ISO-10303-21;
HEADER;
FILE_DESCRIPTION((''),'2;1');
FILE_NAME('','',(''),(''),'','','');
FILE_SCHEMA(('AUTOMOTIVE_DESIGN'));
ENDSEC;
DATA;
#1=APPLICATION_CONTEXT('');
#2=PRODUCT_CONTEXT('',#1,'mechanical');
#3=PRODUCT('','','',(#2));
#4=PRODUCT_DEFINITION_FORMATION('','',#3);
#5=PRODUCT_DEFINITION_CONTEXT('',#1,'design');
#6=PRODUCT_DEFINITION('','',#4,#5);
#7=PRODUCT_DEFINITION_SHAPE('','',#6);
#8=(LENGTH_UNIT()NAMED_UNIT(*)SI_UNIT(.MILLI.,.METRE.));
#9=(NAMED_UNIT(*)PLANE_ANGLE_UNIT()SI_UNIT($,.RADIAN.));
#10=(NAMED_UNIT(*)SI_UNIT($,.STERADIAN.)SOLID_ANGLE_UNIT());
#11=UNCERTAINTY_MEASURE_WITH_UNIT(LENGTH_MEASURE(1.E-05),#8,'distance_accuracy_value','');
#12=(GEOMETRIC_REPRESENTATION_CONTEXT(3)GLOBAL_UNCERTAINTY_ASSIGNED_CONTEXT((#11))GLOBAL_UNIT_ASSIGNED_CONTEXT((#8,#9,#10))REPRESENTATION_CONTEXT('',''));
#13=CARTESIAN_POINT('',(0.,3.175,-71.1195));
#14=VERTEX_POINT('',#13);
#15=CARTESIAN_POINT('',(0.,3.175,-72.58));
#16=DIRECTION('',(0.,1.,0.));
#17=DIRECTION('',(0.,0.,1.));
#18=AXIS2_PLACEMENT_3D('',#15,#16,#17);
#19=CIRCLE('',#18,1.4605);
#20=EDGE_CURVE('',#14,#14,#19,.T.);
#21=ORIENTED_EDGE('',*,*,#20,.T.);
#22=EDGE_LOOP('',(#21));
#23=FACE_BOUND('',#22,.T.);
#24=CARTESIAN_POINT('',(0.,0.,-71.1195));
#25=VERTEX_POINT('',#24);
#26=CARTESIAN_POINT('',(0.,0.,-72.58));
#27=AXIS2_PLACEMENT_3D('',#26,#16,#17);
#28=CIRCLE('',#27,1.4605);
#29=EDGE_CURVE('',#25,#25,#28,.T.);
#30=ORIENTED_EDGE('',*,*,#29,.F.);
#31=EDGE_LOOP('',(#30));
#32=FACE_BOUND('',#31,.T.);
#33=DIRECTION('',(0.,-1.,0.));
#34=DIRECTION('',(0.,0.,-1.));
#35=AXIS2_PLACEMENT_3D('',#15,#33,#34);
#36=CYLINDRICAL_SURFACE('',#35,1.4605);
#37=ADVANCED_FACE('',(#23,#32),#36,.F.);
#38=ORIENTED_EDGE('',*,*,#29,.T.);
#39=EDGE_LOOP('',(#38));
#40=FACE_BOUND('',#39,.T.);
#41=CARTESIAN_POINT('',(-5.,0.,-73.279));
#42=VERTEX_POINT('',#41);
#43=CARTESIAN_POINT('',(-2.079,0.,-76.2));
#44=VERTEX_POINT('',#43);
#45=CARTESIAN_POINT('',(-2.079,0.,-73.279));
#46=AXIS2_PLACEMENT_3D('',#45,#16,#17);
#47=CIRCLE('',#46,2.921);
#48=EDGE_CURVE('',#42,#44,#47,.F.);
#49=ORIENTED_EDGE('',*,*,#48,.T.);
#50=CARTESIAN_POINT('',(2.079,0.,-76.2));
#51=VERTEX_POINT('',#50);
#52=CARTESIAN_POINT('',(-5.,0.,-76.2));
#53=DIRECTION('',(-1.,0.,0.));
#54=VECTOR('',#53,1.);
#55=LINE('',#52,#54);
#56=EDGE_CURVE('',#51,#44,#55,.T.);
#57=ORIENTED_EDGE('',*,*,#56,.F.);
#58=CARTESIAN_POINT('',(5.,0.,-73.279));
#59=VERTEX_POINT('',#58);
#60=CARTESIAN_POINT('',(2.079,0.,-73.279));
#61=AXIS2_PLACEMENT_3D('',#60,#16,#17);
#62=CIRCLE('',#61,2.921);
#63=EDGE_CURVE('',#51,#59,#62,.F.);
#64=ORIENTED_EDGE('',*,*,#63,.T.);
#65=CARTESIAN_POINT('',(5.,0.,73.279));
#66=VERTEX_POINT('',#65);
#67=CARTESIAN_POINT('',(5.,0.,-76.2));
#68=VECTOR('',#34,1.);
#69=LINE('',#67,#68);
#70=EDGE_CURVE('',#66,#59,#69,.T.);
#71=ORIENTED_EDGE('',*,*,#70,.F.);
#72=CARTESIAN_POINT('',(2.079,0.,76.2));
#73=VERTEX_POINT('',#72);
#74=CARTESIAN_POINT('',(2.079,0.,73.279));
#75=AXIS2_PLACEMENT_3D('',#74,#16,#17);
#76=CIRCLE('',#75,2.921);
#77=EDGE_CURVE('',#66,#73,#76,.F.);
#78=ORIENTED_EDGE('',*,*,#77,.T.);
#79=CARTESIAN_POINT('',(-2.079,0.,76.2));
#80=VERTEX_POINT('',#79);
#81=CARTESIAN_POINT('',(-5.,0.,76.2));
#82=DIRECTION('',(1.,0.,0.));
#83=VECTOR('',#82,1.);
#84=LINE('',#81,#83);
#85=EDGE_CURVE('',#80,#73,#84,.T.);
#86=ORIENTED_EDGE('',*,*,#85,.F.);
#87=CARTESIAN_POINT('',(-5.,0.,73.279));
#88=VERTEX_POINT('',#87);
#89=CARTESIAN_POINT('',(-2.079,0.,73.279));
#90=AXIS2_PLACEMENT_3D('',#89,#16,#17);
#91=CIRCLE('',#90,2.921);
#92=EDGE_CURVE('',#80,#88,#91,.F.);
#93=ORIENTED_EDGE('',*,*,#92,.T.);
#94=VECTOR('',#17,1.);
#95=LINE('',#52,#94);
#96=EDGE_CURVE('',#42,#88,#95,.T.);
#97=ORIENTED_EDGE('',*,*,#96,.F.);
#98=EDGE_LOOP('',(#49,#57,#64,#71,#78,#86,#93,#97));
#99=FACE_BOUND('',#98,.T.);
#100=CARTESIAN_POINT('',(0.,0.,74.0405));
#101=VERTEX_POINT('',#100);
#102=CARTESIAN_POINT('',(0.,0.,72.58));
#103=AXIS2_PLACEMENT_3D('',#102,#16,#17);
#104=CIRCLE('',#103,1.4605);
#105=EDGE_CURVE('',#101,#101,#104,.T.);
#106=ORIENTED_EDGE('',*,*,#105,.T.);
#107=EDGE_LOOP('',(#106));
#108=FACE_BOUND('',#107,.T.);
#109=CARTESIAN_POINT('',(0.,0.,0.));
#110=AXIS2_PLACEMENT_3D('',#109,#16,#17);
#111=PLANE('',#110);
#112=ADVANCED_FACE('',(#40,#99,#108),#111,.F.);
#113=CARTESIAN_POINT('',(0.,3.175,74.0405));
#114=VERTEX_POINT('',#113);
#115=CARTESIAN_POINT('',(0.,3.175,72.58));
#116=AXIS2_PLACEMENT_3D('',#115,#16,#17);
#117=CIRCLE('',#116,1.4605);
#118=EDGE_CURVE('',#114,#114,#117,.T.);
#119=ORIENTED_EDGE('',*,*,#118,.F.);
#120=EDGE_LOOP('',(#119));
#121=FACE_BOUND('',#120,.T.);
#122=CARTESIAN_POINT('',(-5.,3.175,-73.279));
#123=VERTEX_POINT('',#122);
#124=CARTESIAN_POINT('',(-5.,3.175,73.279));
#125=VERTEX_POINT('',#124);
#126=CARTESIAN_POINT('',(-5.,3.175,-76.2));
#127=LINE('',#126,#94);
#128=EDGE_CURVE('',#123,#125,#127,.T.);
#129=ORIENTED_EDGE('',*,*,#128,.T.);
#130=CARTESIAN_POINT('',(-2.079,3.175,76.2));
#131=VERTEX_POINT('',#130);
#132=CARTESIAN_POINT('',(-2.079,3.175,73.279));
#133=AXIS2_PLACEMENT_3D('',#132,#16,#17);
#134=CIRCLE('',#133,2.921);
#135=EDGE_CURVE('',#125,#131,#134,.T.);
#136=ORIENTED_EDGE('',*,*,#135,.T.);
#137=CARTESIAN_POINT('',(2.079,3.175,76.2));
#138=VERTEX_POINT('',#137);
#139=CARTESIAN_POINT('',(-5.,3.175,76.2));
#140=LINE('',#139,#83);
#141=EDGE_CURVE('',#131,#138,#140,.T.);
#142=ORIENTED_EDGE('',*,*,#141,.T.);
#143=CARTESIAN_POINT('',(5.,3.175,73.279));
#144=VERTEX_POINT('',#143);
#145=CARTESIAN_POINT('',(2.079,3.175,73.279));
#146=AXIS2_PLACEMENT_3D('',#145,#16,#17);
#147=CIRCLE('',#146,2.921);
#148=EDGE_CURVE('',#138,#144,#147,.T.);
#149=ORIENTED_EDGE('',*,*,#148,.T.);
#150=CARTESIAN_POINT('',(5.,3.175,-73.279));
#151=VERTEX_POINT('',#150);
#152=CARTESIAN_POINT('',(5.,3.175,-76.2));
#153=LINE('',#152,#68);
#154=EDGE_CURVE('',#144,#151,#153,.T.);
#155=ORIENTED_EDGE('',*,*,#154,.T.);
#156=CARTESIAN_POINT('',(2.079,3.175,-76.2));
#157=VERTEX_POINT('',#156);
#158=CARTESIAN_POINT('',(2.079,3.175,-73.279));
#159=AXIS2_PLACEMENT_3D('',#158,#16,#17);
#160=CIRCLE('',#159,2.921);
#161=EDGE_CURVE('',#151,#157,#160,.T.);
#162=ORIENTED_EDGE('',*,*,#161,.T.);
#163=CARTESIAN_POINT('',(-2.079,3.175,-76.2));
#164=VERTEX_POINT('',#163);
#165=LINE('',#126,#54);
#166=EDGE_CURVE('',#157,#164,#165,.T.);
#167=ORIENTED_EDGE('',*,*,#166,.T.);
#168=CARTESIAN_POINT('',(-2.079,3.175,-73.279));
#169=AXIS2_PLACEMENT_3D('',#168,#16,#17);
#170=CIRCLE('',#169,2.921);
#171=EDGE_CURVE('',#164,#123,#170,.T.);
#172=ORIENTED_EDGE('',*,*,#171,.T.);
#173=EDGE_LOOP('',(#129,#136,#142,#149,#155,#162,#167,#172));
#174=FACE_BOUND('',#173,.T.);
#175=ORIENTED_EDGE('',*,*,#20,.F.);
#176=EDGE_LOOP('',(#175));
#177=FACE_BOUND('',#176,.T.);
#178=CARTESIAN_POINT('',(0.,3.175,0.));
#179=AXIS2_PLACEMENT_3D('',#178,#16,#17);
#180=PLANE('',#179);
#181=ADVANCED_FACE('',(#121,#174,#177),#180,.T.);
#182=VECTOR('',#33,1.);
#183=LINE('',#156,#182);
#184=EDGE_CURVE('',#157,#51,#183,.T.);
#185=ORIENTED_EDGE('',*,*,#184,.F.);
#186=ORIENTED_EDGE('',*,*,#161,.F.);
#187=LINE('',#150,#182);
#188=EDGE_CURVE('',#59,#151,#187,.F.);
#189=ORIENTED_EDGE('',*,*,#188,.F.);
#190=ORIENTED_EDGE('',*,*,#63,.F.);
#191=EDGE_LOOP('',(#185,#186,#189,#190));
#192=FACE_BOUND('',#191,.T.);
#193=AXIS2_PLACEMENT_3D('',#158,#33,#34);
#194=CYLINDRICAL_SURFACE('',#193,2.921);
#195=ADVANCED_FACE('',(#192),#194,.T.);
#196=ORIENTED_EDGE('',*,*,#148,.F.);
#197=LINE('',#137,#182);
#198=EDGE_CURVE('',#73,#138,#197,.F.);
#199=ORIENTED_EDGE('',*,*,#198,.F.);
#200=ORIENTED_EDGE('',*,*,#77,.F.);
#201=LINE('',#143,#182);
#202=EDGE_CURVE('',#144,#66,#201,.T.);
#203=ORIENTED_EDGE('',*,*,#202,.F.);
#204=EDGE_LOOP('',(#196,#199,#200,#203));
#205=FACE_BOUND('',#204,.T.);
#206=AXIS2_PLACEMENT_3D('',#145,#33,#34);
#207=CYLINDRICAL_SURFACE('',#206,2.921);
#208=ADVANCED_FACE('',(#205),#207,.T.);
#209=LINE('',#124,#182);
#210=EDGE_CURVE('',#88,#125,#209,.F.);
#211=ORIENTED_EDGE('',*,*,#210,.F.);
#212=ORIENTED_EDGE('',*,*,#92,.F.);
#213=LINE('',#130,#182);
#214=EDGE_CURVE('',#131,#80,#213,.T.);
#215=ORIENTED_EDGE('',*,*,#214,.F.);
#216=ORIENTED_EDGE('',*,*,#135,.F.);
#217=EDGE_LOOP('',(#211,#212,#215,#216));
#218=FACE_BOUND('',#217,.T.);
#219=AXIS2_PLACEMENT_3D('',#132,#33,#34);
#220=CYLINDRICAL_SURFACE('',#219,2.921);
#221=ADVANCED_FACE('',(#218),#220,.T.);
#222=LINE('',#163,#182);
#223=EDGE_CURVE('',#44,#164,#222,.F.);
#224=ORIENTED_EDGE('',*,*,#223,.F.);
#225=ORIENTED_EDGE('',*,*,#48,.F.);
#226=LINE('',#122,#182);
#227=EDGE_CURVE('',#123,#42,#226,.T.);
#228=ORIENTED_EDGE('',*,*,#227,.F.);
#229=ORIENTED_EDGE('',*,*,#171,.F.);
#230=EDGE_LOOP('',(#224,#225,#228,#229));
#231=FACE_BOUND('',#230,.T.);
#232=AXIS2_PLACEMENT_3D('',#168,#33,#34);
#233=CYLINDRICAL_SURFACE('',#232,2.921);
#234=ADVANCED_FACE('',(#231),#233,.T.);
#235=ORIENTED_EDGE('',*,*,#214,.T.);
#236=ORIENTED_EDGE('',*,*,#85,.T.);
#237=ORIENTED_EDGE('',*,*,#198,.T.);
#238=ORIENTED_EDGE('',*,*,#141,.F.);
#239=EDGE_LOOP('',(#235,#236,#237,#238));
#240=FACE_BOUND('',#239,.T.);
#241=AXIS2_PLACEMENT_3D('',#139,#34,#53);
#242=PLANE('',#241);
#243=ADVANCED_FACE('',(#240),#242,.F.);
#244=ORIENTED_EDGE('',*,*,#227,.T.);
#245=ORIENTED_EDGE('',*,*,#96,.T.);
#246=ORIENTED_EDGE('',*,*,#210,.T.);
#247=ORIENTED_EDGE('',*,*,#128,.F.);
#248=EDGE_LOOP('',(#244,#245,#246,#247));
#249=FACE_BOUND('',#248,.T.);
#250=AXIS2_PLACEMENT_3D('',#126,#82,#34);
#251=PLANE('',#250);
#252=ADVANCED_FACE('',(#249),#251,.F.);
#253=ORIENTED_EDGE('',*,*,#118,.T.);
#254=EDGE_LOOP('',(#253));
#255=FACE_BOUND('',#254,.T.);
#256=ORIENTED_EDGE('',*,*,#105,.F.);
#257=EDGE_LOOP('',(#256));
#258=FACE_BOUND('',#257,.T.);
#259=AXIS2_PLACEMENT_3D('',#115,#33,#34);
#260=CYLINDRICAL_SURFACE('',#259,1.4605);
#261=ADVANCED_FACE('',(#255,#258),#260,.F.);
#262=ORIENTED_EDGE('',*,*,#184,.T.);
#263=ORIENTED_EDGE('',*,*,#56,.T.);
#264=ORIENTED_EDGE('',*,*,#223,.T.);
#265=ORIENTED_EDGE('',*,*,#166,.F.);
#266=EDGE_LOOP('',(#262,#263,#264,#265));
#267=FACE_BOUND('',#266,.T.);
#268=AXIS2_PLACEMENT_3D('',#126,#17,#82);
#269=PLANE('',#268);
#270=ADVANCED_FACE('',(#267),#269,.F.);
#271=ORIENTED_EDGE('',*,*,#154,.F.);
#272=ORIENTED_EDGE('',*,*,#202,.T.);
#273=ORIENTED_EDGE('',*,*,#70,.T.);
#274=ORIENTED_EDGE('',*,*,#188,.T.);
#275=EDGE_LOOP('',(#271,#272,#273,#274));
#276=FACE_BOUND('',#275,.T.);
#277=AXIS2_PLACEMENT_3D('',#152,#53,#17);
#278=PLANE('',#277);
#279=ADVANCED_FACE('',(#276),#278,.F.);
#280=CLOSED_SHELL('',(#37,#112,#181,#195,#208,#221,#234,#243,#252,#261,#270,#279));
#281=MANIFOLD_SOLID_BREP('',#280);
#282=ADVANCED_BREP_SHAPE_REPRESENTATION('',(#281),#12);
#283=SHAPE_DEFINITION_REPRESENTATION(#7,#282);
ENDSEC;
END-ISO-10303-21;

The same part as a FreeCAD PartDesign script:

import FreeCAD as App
import Part
import Sketcher

V = App.Vector
Q = App.Units.Quantity


def edges_at(feature, points):
    """Names of the edges that pass closest to the given points."""
    edges = feature.Shape.Edges
    near = lambda p: min(range(len(edges)), key=lambda i: edges[i].distToShape(Part.Vertex(*p))[0])
    return sorted({f"Edge{near(p) + 1}" for p in points})

doc = App.newDocument("Part")
params = doc.addObject("Spreadsheet::Sheet", "Params")
for row, (alias, value) in enumerate([
    ("sketch1_height", "6 in"),
    ("sketch1_diameter", "0.115 in"),
    ("pad1_length", "0.125 in"),
    ("fillet_radius", "0.115 in"),
], start=1):
    params.set(f"A{row}", alias)
    params.set(f"B{row}", "=" + value)
    params.setAlias(f"B{row}", alias)

body = doc.addObject("PartDesign::Body", "Body")

sketch1 = body.newObject("Sketcher::SketchObject", "Sketch")
sketch1.AttachmentSupport = (doc.getObject("XZ_Plane"), [""])
sketch1.MapMode = "FlatFace"
sketch1.addGeometry([
    Part.LineSegment(V(-5, -76.2, 0), V(-5, 76.2, 0)),
    Part.LineSegment(V(-5, 76.2, 0), V(5, 76.2, 0)),
    Part.LineSegment(V(5, 76.2, 0), V(5, -76.2, 0)),
    Part.LineSegment(V(5, -76.2, 0), V(-5, -76.2, 0)),
    Part.Circle(V(0, 72.58, 0), V(0, 0, 1), 1.4605),
    Part.Circle(V(0, -72.58, 0), V(0, 0, 1), 1.4605),
], False)
sketch1.addConstraint([
    Sketcher.Constraint("Coincident", 0, 2, 1, 1),
    Sketcher.Constraint("Coincident", 1, 2, 2, 1),
    Sketcher.Constraint("Coincident", 2, 2, 3, 1),
    Sketcher.Constraint("Coincident", 3, 2, 0, 1),
    Sketcher.Constraint("Vertical", 0),
    Sketcher.Constraint("Horizontal", 1),
    Sketcher.Constraint("Vertical", 2),
    Sketcher.Constraint("Horizontal", 3),
    Sketcher.Constraint("Equal", 4, 5),
    Sketcher.Constraint("Symmetric", 4, 3, 5, 3, -1, 1),
    Sketcher.Constraint("Symmetric", 0, 2, 2, 2, -1, 1),
    Sketcher.Constraint("PointOnObject", 4, 3, -2),
    Sketcher.Constraint("DistanceY", 0, 1, 0, 2, Q("6 in")),
    Sketcher.Constraint("Diameter", 4, Q("0.115 in")),
    Sketcher.Constraint("DistanceX", 1, 1, 1, 2, 10.0),
    Sketcher.Constraint("DistanceY", -1, 1, 4, 3, 72.58),
])
sketch1.setExpression("Constraints[12]", "Params.sketch1_height")
sketch1.setExpression("Constraints[13]", "Params.sketch1_diameter")
pad1 = body.newObject("PartDesign::Pad", "Pad")
pad1.Profile = sketch1
pad1.setExpression("Length", "Params.pad1_length")
pad1.Reversed = True
doc.recompute()

fillet = body.newObject("PartDesign::Fillet", "Fillet")
fillet.Base = (pad1, edges_at(pad1, [
    (5, 1.587, 76.2),
    (-5, 1.587, 76.2),
    (-5, 1.587, -76.2),
    (5, 1.587, -76.2),
]))
fillet.setExpression("Radius", "Params.fillet_radius")

doc.recompute()
